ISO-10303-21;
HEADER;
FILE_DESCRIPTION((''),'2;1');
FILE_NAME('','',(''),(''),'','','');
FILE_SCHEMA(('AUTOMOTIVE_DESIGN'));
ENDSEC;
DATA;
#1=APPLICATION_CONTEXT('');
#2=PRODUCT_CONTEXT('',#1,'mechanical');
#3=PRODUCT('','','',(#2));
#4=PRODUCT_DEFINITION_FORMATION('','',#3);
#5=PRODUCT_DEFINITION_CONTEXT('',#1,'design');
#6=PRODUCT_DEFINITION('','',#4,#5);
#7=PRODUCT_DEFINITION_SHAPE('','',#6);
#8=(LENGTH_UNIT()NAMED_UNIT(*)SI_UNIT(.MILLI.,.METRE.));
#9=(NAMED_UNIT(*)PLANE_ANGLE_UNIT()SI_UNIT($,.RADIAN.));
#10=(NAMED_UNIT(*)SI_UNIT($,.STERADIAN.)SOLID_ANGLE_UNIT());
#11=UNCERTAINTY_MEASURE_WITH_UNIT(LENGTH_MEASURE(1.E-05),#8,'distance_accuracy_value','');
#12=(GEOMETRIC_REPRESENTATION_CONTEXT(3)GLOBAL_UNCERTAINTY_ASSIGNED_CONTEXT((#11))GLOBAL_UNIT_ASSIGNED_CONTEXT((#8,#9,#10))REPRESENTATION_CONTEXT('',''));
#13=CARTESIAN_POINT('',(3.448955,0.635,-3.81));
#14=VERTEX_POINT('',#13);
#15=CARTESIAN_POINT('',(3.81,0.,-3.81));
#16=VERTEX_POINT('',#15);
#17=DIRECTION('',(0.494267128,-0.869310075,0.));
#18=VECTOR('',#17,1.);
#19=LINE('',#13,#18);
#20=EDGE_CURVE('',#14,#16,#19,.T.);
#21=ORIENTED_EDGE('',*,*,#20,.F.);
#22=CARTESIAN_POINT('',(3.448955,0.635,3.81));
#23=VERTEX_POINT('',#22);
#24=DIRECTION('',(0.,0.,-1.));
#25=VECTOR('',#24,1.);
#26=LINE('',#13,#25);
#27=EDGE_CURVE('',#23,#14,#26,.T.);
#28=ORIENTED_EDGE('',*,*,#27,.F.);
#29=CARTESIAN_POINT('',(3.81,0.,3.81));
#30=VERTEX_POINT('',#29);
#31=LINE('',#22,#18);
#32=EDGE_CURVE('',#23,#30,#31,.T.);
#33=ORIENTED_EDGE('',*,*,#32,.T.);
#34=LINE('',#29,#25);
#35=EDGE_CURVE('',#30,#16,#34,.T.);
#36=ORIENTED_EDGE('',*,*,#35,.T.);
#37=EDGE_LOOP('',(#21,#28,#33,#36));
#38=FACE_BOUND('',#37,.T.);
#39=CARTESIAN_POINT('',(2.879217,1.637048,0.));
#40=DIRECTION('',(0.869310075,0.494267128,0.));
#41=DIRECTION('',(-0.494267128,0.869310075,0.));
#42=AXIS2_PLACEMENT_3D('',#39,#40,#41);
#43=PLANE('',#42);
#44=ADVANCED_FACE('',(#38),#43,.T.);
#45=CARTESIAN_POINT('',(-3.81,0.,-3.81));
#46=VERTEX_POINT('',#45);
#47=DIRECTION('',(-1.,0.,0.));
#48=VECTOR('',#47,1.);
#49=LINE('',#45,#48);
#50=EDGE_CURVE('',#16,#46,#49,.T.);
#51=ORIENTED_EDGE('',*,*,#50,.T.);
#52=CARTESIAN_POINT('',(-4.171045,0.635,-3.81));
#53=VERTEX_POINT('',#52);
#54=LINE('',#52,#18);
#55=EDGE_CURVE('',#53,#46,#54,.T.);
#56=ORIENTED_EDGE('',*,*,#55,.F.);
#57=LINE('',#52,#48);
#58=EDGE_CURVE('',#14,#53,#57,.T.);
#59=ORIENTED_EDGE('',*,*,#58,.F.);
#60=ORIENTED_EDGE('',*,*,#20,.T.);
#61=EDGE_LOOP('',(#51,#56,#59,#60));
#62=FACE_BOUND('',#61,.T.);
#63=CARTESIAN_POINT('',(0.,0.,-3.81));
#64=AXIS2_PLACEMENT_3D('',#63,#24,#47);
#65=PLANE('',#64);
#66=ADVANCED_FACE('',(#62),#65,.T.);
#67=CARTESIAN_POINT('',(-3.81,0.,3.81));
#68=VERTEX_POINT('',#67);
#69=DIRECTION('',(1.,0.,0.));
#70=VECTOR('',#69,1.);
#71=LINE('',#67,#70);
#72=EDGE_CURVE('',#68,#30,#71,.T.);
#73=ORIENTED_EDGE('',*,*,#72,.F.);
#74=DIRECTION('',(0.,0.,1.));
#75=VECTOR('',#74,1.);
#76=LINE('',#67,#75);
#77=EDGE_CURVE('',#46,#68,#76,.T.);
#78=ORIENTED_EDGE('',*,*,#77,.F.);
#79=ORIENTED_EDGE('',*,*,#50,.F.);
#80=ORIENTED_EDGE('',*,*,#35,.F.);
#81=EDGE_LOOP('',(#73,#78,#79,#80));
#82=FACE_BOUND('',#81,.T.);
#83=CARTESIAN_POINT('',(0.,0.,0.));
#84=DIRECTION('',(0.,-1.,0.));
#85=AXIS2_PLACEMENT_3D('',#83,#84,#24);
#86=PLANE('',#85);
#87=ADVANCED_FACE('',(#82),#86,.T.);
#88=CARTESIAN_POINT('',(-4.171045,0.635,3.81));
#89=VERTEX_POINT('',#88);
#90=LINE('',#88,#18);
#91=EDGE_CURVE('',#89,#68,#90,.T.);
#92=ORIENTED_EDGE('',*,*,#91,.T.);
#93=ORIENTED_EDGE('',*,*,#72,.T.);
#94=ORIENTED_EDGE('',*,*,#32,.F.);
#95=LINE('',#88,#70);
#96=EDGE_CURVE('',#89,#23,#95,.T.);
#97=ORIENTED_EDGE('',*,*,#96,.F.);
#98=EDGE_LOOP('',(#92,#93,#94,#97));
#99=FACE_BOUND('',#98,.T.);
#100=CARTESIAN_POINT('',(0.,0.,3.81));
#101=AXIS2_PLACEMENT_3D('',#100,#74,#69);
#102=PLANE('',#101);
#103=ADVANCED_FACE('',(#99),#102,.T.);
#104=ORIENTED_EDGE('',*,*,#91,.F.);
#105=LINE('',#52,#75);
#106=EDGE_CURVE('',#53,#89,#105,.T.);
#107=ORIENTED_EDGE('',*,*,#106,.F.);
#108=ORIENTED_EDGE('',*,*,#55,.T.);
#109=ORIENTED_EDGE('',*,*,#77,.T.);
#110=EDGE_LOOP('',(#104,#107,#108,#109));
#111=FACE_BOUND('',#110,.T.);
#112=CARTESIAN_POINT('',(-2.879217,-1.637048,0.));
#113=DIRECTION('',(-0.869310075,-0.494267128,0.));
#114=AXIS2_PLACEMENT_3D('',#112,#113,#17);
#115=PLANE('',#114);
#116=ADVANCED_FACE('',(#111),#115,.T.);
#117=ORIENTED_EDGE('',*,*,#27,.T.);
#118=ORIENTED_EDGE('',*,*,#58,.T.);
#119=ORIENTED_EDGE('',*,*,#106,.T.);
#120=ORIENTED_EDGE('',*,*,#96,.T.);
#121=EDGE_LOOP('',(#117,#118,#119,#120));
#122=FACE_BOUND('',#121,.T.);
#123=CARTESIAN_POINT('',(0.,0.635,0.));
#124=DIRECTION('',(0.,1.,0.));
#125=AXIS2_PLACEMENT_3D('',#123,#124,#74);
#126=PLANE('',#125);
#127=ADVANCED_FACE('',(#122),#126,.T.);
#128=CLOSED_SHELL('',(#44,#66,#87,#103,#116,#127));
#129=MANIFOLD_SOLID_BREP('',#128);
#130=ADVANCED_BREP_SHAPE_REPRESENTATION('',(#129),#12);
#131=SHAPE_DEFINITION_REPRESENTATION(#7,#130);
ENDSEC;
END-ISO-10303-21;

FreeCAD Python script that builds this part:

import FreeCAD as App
import Part
import Sketcher
Q = App.Units.Quantity


def add_polygon(sketch, points):
    """Adds a closed chain of lines whose ends are joined by coincident constraints."""
    first, n = sketch.GeometryCount, len(points)
    for a, b in zip(points, points[1:] + points[:1]):
        sketch.addGeometry(Part.LineSegment(App.Vector(*a, 0), App.Vector(*b, 0)), False)
    for i in range(n):
        sketch.addConstraint(Sketcher.Constraint("Coincident", first + i, 2, first + (i + 1) % n, 1))

doc = App.newDocument("Part")
params = doc.addObject("Spreadsheet::Sheet", "Params")
for row, (alias, value) in enumerate([
    ("sketch1_width", "0.3 in"),
    ("sketch2_width", "0.3 in"),
], start=1):
    params.set(f"A{row}", alias)
    params.set(f"B{row}", "=" + value)
    params.setAlias(f"B{row}", alias)

body = doc.addObject("PartDesign::Body", "Body")

sketch1 = doc.addObject("Sketcher::SketchObject", "Sketch")
body.addObject(sketch1)
sketch1.AttachmentSupport = (doc.XZ_Plane, [""])
sketch1.MapMode = "FlatFace"
sketch1.AttachmentOffset = App.Placement(App.Vector(0, 0, -0.025 * 25.4), App.Rotation())
add_polygon(sketch1, [(3, -4), (-4, -4), (-4, 4), (3, 4)])
sketch1.addConstraint([
    Sketcher.Constraint("Horizontal", 0),
    Sketcher.Constraint("Vertical", 1),
    Sketcher.Constraint("Horizontal", 2),
    Sketcher.Constraint("Vertical", 3),
    Sketcher.Constraint("Equal", 2, 1),
    Sketcher.Constraint("DistanceX", 0, 2, 0, 1, Q("0.3 in")),
    Sketcher.Constraint("DistanceY", 0, 2, -1, 1, Q("0.15 in")),
    Sketcher.Constraint("DistanceX", 0, 2, -1, 1, Q("4.171045 mm")),
])
sketch1.setExpression("Constraints[9]", "Params.sketch1_width")

sketch2 = doc.addObject("Sketcher::SketchObject", "Sketch001")
body.addObject(sketch2)
sketch2.AttachmentSupport = (doc.XZ_Plane, [""])
sketch2.MapMode = "FlatFace"
add_polygon(sketch2, [(-4, 4), (4, 4), (4, -4), (-4, -4)])
sketch2.addConstraint([
    Sketcher.Constraint("Horizontal", 0),
    Sketcher.Constraint("Vertical", 1),
    Sketcher.Constraint("Horizontal", 2),
    Sketcher.Constraint("Vertical", 3),
    Sketcher.Constraint("Symmetric", 0, 2, 2, 2, -1, 1),
    Sketcher.Constraint("Equal", 2, 1),
    Sketcher.Constraint("DistanceX", 0, 1, 0, 2, Q("0.3 in")),
])
sketch2.setExpression("Constraints[10]", "Params.sketch2_width")

additiveloft = doc.addObject("PartDesign::AdditiveLoft", "AdditiveLoft")
body.addObject(additiveloft)
additiveloft.Profile = sketch1
additiveloft.Sections = [sketch2]

doc.recompute()
